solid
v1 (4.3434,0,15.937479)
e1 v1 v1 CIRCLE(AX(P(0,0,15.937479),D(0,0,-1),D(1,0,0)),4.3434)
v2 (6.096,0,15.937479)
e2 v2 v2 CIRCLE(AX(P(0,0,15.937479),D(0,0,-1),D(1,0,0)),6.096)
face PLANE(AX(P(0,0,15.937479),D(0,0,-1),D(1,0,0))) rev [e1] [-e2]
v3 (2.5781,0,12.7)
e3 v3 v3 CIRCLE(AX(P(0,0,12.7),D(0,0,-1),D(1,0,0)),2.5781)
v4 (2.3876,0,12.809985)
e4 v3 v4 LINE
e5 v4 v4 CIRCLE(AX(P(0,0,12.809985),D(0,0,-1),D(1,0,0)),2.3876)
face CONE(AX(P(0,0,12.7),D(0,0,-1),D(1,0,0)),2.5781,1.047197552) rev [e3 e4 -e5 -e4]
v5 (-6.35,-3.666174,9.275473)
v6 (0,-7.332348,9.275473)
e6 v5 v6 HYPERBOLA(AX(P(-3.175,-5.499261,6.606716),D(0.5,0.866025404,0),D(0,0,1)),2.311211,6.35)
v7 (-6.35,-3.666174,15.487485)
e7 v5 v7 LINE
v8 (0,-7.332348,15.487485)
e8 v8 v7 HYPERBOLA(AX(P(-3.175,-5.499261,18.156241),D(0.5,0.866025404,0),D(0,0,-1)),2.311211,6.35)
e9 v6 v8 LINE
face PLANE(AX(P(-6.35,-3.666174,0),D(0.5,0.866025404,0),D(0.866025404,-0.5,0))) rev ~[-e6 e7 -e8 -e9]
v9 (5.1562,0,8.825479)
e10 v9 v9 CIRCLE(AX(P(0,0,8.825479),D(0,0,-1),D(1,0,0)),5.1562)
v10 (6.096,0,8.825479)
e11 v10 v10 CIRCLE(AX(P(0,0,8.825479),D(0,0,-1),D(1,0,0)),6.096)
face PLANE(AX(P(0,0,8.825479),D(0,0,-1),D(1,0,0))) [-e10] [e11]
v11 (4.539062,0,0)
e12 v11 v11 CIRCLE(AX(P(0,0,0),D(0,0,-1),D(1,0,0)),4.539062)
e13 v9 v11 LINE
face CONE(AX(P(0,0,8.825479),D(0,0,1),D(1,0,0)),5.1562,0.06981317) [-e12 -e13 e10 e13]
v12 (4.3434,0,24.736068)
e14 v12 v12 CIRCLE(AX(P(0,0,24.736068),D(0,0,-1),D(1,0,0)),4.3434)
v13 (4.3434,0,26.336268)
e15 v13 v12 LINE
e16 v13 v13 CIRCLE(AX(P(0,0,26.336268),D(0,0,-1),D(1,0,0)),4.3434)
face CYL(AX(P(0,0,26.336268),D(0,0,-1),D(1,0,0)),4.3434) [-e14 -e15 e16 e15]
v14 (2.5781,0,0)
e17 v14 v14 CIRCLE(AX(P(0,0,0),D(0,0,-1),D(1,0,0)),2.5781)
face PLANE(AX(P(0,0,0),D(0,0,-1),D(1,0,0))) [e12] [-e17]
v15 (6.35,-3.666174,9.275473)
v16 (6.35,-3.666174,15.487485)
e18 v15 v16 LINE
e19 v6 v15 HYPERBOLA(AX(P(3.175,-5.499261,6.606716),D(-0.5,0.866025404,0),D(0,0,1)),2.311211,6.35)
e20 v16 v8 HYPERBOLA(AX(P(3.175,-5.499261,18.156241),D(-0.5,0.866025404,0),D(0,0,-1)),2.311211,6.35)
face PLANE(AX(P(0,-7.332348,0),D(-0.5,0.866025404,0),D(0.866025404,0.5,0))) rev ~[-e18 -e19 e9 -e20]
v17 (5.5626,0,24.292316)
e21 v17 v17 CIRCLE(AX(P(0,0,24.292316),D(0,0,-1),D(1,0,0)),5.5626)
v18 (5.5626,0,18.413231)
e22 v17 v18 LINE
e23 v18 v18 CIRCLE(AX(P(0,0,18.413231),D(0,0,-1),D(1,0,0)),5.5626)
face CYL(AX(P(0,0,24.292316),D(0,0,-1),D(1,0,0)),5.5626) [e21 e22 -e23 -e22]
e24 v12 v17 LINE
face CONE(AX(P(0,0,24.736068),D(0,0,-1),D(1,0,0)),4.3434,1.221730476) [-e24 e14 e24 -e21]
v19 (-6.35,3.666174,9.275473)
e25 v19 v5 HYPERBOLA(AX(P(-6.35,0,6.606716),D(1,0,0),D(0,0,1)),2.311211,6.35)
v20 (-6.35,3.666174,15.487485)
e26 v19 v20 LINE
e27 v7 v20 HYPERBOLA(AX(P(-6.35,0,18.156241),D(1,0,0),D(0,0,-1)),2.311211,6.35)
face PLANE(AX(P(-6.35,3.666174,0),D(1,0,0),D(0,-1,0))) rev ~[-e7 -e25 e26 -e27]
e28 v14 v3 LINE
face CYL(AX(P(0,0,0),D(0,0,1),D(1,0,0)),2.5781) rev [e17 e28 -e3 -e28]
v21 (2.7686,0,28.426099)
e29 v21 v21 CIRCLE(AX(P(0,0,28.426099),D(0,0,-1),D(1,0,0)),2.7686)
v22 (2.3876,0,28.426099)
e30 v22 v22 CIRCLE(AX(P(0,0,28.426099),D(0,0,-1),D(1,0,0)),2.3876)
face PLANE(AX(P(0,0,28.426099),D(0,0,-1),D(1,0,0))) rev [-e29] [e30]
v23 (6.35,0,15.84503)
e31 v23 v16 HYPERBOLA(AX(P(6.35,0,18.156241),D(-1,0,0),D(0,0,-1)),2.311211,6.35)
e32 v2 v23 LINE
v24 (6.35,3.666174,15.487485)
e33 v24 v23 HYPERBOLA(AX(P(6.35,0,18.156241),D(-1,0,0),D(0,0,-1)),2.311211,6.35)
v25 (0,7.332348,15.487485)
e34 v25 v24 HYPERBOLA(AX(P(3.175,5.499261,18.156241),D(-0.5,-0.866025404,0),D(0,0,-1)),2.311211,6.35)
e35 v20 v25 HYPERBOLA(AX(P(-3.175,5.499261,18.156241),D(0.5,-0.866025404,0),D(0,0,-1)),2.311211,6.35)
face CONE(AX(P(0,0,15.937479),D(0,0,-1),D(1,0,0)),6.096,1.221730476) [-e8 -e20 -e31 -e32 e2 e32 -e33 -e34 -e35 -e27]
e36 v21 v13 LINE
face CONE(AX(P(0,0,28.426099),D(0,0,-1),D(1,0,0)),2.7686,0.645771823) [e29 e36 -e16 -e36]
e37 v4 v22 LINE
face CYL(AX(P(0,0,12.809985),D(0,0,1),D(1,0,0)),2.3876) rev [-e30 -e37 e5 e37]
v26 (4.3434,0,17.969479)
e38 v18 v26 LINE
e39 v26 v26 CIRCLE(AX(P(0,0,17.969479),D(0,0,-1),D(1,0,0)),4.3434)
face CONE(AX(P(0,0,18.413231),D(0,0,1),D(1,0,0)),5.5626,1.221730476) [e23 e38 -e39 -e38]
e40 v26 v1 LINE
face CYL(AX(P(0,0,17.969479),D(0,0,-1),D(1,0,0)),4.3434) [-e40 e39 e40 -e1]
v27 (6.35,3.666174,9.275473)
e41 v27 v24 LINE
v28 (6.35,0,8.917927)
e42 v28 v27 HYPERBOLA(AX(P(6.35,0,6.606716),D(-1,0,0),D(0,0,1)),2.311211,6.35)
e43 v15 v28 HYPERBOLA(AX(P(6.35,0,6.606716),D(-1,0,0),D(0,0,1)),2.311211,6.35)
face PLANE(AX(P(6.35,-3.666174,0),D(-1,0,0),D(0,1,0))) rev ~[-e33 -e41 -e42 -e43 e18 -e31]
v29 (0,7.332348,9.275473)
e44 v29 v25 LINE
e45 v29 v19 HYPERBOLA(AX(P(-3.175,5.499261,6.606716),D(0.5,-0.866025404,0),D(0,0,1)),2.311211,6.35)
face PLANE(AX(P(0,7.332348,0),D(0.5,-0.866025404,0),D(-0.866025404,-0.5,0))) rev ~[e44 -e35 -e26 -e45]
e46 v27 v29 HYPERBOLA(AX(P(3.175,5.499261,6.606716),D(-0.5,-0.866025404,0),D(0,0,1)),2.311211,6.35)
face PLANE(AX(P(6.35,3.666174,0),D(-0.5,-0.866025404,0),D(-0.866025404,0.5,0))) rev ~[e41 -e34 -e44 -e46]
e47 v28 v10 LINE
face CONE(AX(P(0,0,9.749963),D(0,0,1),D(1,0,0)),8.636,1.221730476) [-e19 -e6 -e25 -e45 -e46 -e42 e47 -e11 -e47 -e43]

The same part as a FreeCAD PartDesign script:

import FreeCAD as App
import Part
import Sketcher

V = App.Vector
Q = App.Units.Quantity

doc = App.newDocument("Part")
body = doc.addObject("PartDesign::Body", "Body")

# Sketch on YZ plane
sketch1 = body.newObject("Sketcher::SketchObject", "Sketch")
sketch1.AttachmentSupport = (doc.getObject("YZ_Plane"), [""])
sketch1.MapMode = "FlatFace"
sketch1.addGeometry(Part.LineSegment(V(2.3876, 28.426099, 0), V(2.3876, 12.809985, 0)), False)
sketch1.addGeometry(Part.LineSegment(V(2.3876, 12.809985, 0), V(2.5781, 12.7, 0)), False)
sketch1.addGeometry(Part.LineSegment(V(2.5781, 12.7, 0), V(2.5781, 0, 0)), False)
sketch1.addGeometry(Part.LineSegment(V(2.5781, 0, 0), V(4.539062, 0, 0)), False)
sketch1.addGeometry(Part.LineSegment(V(4.539062, 0, 0), V(5.1562, 8.825479, 0)), False)
sketch1.addGeometry(Part.LineSegment(V(5.1562, 8.825479, 0), V(6.096, 8.825479, 0)), False)
sketch1.addGeometry(Part.LineSegment(V(6.096, 8.825479, 0), V(8.636, 9.749963, 0)), False)
sketch1.addGeometry(Part.LineSegment(V(8.636, 9.749963, 0), V(8.636, 15.012994, 0)), False)
sketch1.addGeometry(Part.LineSegment(V(8.636, 15.012994, 0), V(6.096, 15.937479, 0)), False)
sketch1.addGeometry(Part.LineSegment(V(6.096, 15.937479, 0), V(4.3434, 15.937479, 0)), False)
sketch1.addGeometry(Part.LineSegment(V(4.3434, 15.937479, 0), V(4.3434, 17.969479, 0)), False)
sketch1.addGeometry(Part.LineSegment(V(4.3434, 17.969479, 0), V(5.5626, 18.413231, 0)), False)
sketch1.addGeometry(Part.LineSegment(V(5.5626, 18.413231, 0), V(5.5626, 24.292316, 0)), False)
sketch1.addGeometry(Part.LineSegment(V(5.5626, 24.292316, 0), V(4.3434, 24.736068, 0)), False)
sketch1.addGeometry(Part.LineSegment(V(4.3434, 24.736068, 0), V(4.3434, 26.336268, 0)), False)
sketch1.addGeometry(Part.LineSegment(V(4.3434, 26.336268, 0), V(2.7686, 28.426099, 0)), False)
sketch1.addGeometry(Part.LineSegment(V(2.7686, 28.426099, 0), V(2.3876, 28.426099, 0)), False)
sketch1.addConstraint(Sketcher.Constraint("Coincident", 0, 2, 1, 1))
sketch1.addConstraint(Sketcher.Constraint("Coincident", 1, 2, 2, 1))
sketch1.addConstraint(Sketcher.Constraint("Coincident", 2, 2, 3, 1))
sketch1.addConstraint(Sketcher.Constraint("Coincident", 3, 2, 4, 1))
sketch1.addConstraint(Sketcher.Constraint("Coincident", 4, 2, 5, 1))
sketch1.addConstraint(Sketcher.Constraint("Coincident", 5, 2, 6, 1))
sketch1.addConstraint(Sketcher.Constraint("Coincident", 6, 2, 7, 1))
sketch1.addConstraint(Sketcher.Constraint("Coincident", 7, 2, 8, 1))
sketch1.addConstraint(Sketcher.Constraint("Coincident", 8, 2, 9, 1))
sketch1.addConstraint(Sketcher.Constraint("Coincident", 9, 2, 10, 1))
sketch1.addConstraint(Sketcher.Constraint("Coincident", 10, 2, 11, 1))
sketch1.addConstraint(Sketcher.Constraint("Coincident", 11, 2, 12, 1))
sketch1.addConstraint(Sketcher.Constraint("Coincident", 12, 2, 13, 1))
sketch1.addConstraint(Sketcher.Constraint("Coincident", 13, 2, 14, 1))
sketch1.addConstraint(Sketcher.Constraint("Coincident", 14, 2, 15, 1))
sketch1.addConstraint(Sketcher.Constraint("Coincident", 15, 2, 16, 1))
sketch1.addConstraint(Sketcher.Constraint("Coincident", 16, 2, 0, 1))
sketch1.addConstraint(Sketcher.Constraint("Vertical", 0))
sketch1.addConstraint(Sketcher.Constraint("Vertical", 2))
sketch1.addConstraint(Sketcher.Constraint("Horizontal", 3))
sketch1.addConstraint(Sketcher.Constraint("Horizontal", 5))
sketch1.addConstraint(Sketcher.Constraint("Vertical", 7))
sketch1.addConstraint(Sketcher.Constraint("Horizontal", 9))
sketch1.addConstraint(Sketcher.Constraint("Vertical", 10))
sketch1.addConstraint(Sketcher.Constraint("Vertical", 12))
sketch1.addConstraint(Sketcher.Constraint("Vertical", 14))
sketch1.addConstraint(Sketcher.Constraint("Horizontal", 16))
sketch1.addConstraint(Sketcher.Constraint("PointOnObject", 2, 2, -1))
sketch1.addConstraint(Sketcher.Constraint("Parallel", 6, 11))
sketch1.addConstraint(Sketcher.Constraint("Parallel", 8, 13))
sketch1.addConstraint(Sketcher.Constraint("Vertical", 5, 2, 8, 2))
sketch1.addConstraint(Sketcher.Constraint("Vertical", 10, 2, 13, 2))
sketch1.addConstraint(Sketcher.Constraint("Equal", 6, 8))
sketch1.addConstraint(Sketcher.Constraint("DistanceY", 2, 2, 2, 1, Q("0.5 in")))
sketch1.addConstraint(Sketcher.Constraint("Angle", 1, Q("-30 deg")))
sketch1.addConstraint(Sketcher.Constraint("Angle", 4, Q("86 deg")))
sketch1.addConstraint(Sketcher.Constraint("Angle", 6, Q("20 deg")))
sketch1.addConstraint(Sketcher.Constraint("Angle", 15, Q("127 deg")))
sketch1.addConstraint(Sketcher.Constraint("DistanceY", 10, 1, 10, 2, Q("0.08 in")))
sketch1.addConstraint(Sketcher.Constraint("DistanceX", 5, 2, 6, 2, Q("0.1 in")))
sketch1.addConstraint(Sketcher.Constraint("DistanceX", 5, 1, 5, 2, Q("0.037 in")))
sketch1.addConstraint(Sketcher.Constraint("DistanceX", 9, 2, 9, 1, Q("0.069 in")))
sketch1.addConstraint(Sketcher.Constraint("DistanceX", 16, 2, 16, 1, Q("0.015 in")))
sketch1.addConstraint(Sketcher.Constraint("DistanceY", 14, 1, 14, 2, Q("0.063 in")))
sketch1.addConstraint(Sketcher.Constraint("DistanceX", -1, 1, 5, 2, Q("0.24 in")))
sketch1.addConstraint(Sketcher.Constraint("DistanceY", 5, 2, 8, 2, Q("0.28 in")))
sketch1.addConstraint(Sketcher.Constraint("DistanceX", 15, 2, 12, 2, Q("0.11 in")))
sketch1.addConstraint(Sketcher.Constraint("DistanceX", -1, 1, 0, 2, Q("0.094 in")))
sketch1.addConstraint(Sketcher.Constraint("DistanceX", -1, 1, 1, 2, Q("0.1015 in")))
sketch1.addConstraint(Sketcher.Constraint("DistanceY", -1, 1, 15, 2, 28.426099))
sketch1.addConstraint(Sketcher.Constraint("Distance", 4, 8.84703))
revolution = body.newObject("PartDesign::Revolution", "Revolution")
revolution.Profile = sketch1
revolution.ReferenceAxis = (sketch1, ["V_Axis"])
revolution.Angle = 360

# Sketch on XY plane
sketch2 = body.newObject("Sketcher::SketchObject", "Sketch001")
sketch2.AttachmentSupport = (doc.getObject("XY_Plane"), [""])
sketch2.MapMode = "FlatFace"
sketch2.addGeometry(Part.LineSegment(V(-13.384, 13.384, 0), V(-13.384, -13.384, 0)), False)
sketch2.addGeometry(Part.LineSegment(V(-13.384, -13.384, 0), V(13.384, -13.384, 0)), False)
sketch2.addGeometry(Part.LineSegment(V(13.384, -13.384, 0), V(13.384, 13.384, 0)), False)
sketch2.addGeometry(Part.LineSegment(V(13.384, 13.384, 0), V(-13.384, 13.384, 0)), False)
sketch2.addGeometry(Part.LineSegment(V(-6.35, 3.666174, 0), V(0, 7.332348, 0)), False)
sketch2.addGeometry(Part.LineSegment(V(0, 7.332348, 0), V(6.35, 3.666174, 0)), False)
sketch2.addGeometry(Part.LineSegment(V(6.35, 3.666174, 0), V(6.35, -3.666174, 0)), False)
sketch2.addGeometry(Part.LineSegment(V(6.35, -3.666174, 0), V(0, -7.332348, 0)), False)
sketch2.addGeometry(Part.LineSegment(V(0, -7.332348, 0), V(-6.35, -3.666174, 0)), False)
sketch2.addGeometry(Part.LineSegment(V(-6.35, -3.666174, 0), V(-6.35, 3.666174, 0)), False)
sketch2.addConstraint(Sketcher.Constraint("Coincident", 0, 2, 1, 1))
sketch2.addConstraint(Sketcher.Constraint("Coincident", 1, 2, 2, 1))
sketch2.addConstraint(Sketcher.Constraint("Coincident", 2, 2, 3, 1))
sketch2.addConstraint(Sketcher.Constraint("Coincident", 3, 2, 0, 1))
sketch2.addConstraint(Sketcher.Constraint("Coincident", 4, 2, 5, 1))
sketch2.addConstraint(Sketcher.Constraint("Coincident", 5, 2, 6, 1))
sketch2.addConstraint(Sketcher.Constraint("Coincident", 6, 2, 7, 1))
sketch2.addConstraint(Sketcher.Constraint("Coincident", 7, 2, 8, 1))
sketch2.addConstraint(Sketcher.Constraint("Coincident", 8, 2, 9, 1))
sketch2.addConstraint(Sketcher.Constraint("Coincident", 9, 2, 4, 1))
sketch2.addConstraint(Sketcher.Constraint("Vertical", 0))
sketch2.addConstraint(Sketcher.Constraint("Horizontal", 1))
sketch2.addConstraint(Sketcher.Constraint("Vertical", 2))
sketch2.addConstraint(Sketcher.Constraint("Horizontal", 3))
sketch2.addConstraint(Sketcher.Constraint("Vertical", 6))
sketch2.addConstraint(Sketcher.Constraint("Vertical", 9))
sketch2.addConstraint(Sketcher.Constraint("Symmetric", 0, 2, 2, 2, -1, 1))
sketch2.addConstraint(Sketcher.Constraint("Symmetric", 4, 2, 7, 2, -1, 1))
sketch2.addConstraint(Sketcher.Constraint("Symmetric", 5, 2, 8, 2, -1, 1))
sketch2.addConstraint(Sketcher.Constraint("PointOnObject", 4, 2, -2))
sketch2.addConstraint(Sketcher.Constraint("Parallel", 4, 7))
sketch2.addConstraint(Sketcher.Constraint("Horizontal", 6, 2, 8, 2))
sketch2.addConstraint(Sketcher.Constraint("Equal", 3, 0))
sketch2.addConstraint(Sketcher.Constraint("Angle", 4, Q("30 deg")))
sketch2.addConstraint(Sketcher.Constraint("DistanceX", 8, 2, 6, 2, Q("0.5 in")))
sketch2.addConstraint(Sketcher.Constraint("DistanceX", 1, 1, 1, 2, 26.768))
sketch2.addConstraint(Sketcher.Constraint("DistanceY", 6, 2, 6, 1, 7.332348))
pocket1 = body.newObject("PartDesign::Pocket", "Pocket")
pocket1.Profile = sketch2
pocket1.Type = "ThroughAll"
pocket1.Reversed = True

doc.recompute()
